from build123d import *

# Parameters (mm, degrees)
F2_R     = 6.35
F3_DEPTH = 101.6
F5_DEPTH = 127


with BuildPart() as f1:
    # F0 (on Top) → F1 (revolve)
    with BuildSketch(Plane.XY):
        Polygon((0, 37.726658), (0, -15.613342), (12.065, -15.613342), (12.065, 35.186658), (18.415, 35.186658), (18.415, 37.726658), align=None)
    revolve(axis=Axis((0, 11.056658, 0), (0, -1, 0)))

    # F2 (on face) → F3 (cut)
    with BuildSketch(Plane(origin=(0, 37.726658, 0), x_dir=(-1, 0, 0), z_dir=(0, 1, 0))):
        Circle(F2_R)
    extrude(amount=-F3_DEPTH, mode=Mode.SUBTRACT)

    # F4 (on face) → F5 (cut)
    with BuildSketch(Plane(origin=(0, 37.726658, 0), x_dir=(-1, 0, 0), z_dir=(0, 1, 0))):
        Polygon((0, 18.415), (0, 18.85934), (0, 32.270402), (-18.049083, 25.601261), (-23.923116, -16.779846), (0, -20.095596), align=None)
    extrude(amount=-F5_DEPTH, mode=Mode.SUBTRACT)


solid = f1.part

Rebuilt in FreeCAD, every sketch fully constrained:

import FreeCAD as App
import Part
import Sketcher

V = App.Vector
Q = App.Units.Quantity

doc = App.newDocument("Part")
params = doc.addObject("Spreadsheet::Sheet", "Params")
for row, (alias, value) in enumerate([
    ("sketch1_height", "2 in"),
    ("sketch1_height2", "2.1 in"),
    ("sketch1_width", "0.25 in"),
    ("sketch1_width2", "0.475 in"),
    ("revolution_angle", "360 deg"),
    ("sketch2_diameter", "0.5 in"),
    ("pocket1_length", "4 in"),
    ("pocket2_length", "5 in"),
], start=1):
    params.set(f"A{row}", alias)
    params.set(f"B{row}", "=" + value)
    params.setAlias(f"B{row}", alias)

body = doc.addObject("PartDesign::Body", "Body")

sketch1 = doc.addObject("Sketcher::SketchObject", "Sketch")
body.addObject(sketch1)
sketch1.AttachmentSupport = (doc.XY_Plane, [""])
sketch1.MapMode = "FlatFace"
sketch1.addGeometry([
    Part.LineSegment(V(0, 37.7, 0), V(0, -15.6, 0)),
    Part.LineSegment(V(0, -15.6, 0), V(12.1, -15.6, 0)),
    Part.LineSegment(V(12.1, -15.6, 0), V(12.1, 35.2, 0)),
    Part.LineSegment(V(12.1, 35.2, 0), V(18.4, 35.2, 0)),
    Part.LineSegment(V(18.4, 35.2, 0), V(18.4, 37.7, 0)),
    Part.LineSegment(V(18.4, 37.7, 0), V(0, 37.7, 0)),
], False)
sketch1.addConstraint([
    Sketcher.Constraint("Coincident", 0, 2, 1, 1),
    Sketcher.Constraint("Coincident", 1, 2, 2, 1),
    Sketcher.Constraint("Coincident", 2, 2, 3, 1),
    Sketcher.Constraint("Coincident", 3, 2, 4, 1),
    Sketcher.Constraint("Coincident", 4, 2, 5, 1),
    Sketcher.Constraint("Coincident", 5, 2, 0, 1),
    Sketcher.Constraint("Vertical", 0),
    Sketcher.Constraint("Horizontal", 1),
    Sketcher.Constraint("Vertical", 2),
    Sketcher.Constraint("Horizontal", 3),
    Sketcher.Constraint("Vertical", 4),
    Sketcher.Constraint("Horizontal", 5),
    Sketcher.Constraint("PointOnObject", 0, 2, -2),
    Sketcher.Constraint("DistanceY", 2, 1, 2, 2, Q("2 in")),
    Sketcher.Constraint("DistanceY", 0, 2, 0, 1, Q("2.1 in")),
    Sketcher.Constraint("DistanceX", 3, 1, 3, 2, Q("0.25 in")),
    Sketcher.Constraint("DistanceX", 1, 1, 1, 2, Q("0.475 in")),
    Sketcher.Constraint("DistanceY", 0, 2, -1, 1, Q("15.613342 mm")),
])
sketch1.setExpression("Constraints[13]", "Params.sketch1_height")
sketch1.setExpression("Constraints[14]", "Params.sketch1_height2")
sketch1.setExpression("Constraints[15]", "Params.sketch1_width")
sketch1.setExpression("Constraints[16]", "Params.sketch1_width2")
revolution = doc.addObject("PartDesign::Revolution", "Revolution")
body.addObject(revolution)
revolution.Profile = sketch1
revolution.ReferenceAxis = (sketch1, ["V_Axis"])
revolution.setExpression("Angle", "Params.revolution_angle")

sketch2 = doc.addObject("Sketcher::SketchObject", "Sketch001")
body.addObject(sketch2)
sketch2.AttachmentSupport = (doc.XZ_Plane, [""])
sketch2.MapMode = "FlatFace"
sketch2.AttachmentOffset = App.Placement(V(0, 0, -37.726658), App.Rotation())
sketch2.addGeometry(Part.Circle(V(0, 0, 0), V(0, 0, 1), 6), False)
sketch2.addConstraint([
    Sketcher.Constraint("Coincident", 0, 3, -1, 1),
    Sketcher.Constraint("Diameter", 0, Q("0.5 in")),
])
sketch2.setExpression("Constraints[1]", "Params.sketch2_diameter")
pocket1 = doc.addObject("PartDesign::Pocket", "Pocket")
body.addObject(pocket1)
pocket1.Profile = sketch2
pocket1.setExpression("Length", "Params.pocket1_length")
pocket1.Reversed = True

sketch3 = doc.addObject("Sketcher::SketchObject", "Sketch002")
body.addObject(sketch3)
sketch3.AttachmentSupport = (doc.XZ_Plane, [""])
sketch3.MapMode = "FlatFace"
sketch3.AttachmentOffset = App.Placement(V(0, 0, -37.726658), App.Rotation())
sketch3.addGeometry([
    Part.LineSegment(V(0, 32, 0), V(18, 26, 0)),
    Part.LineSegment(V(18, 26, 0), V(24, -17, 0)),
    Part.LineSegment(V(24, -17, 0), V(0, -20, 0)),
    Part.LineSegment(V(0, -20, 0), V(0, 32, 0)),
], False)
sketch3.addConstraint([
    Sketcher.Constraint("Coincident", 0, 2, 1, 1),
    Sketcher.Constraint("Coincident", 1, 2, 2, 1),
    Sketcher.Constraint("Coincident", 2, 2, 3, 1),
    Sketcher.Constraint("Coincident", 3, 2, 0, 1),
    Sketcher.Constraint("Vertical", 3),
    Sketcher.Constraint("PointOnObject", 2, 2, -2),
    Sketcher.Constraint("Perpendicular", 1, 2),
    Sketcher.Constraint("Distance", 0, Q("19.241799 mm")),
    Sketcher.Constraint("DistanceY", -1, 1, 3, 2, Q("32.270402 mm")),
    Sketcher.Constraint("Distance", 1, Q("42.786242 mm")),
    Sketcher.Constraint("DistanceY", 3, 1, 3, 2, Q("52.365998 mm")),
    Sketcher.Constraint("DistanceY", -1, 1, 0, 2, Q("25.601261 mm")),
])
pocket2 = doc.addObject("PartDesign::Pocket", "Pocket001")
body.addObject(pocket2)
pocket2.Profile = sketch3
pocket2.setExpression("Length", "Params.pocket2_length")
pocket2.Reversed = True

doc.recompute()
